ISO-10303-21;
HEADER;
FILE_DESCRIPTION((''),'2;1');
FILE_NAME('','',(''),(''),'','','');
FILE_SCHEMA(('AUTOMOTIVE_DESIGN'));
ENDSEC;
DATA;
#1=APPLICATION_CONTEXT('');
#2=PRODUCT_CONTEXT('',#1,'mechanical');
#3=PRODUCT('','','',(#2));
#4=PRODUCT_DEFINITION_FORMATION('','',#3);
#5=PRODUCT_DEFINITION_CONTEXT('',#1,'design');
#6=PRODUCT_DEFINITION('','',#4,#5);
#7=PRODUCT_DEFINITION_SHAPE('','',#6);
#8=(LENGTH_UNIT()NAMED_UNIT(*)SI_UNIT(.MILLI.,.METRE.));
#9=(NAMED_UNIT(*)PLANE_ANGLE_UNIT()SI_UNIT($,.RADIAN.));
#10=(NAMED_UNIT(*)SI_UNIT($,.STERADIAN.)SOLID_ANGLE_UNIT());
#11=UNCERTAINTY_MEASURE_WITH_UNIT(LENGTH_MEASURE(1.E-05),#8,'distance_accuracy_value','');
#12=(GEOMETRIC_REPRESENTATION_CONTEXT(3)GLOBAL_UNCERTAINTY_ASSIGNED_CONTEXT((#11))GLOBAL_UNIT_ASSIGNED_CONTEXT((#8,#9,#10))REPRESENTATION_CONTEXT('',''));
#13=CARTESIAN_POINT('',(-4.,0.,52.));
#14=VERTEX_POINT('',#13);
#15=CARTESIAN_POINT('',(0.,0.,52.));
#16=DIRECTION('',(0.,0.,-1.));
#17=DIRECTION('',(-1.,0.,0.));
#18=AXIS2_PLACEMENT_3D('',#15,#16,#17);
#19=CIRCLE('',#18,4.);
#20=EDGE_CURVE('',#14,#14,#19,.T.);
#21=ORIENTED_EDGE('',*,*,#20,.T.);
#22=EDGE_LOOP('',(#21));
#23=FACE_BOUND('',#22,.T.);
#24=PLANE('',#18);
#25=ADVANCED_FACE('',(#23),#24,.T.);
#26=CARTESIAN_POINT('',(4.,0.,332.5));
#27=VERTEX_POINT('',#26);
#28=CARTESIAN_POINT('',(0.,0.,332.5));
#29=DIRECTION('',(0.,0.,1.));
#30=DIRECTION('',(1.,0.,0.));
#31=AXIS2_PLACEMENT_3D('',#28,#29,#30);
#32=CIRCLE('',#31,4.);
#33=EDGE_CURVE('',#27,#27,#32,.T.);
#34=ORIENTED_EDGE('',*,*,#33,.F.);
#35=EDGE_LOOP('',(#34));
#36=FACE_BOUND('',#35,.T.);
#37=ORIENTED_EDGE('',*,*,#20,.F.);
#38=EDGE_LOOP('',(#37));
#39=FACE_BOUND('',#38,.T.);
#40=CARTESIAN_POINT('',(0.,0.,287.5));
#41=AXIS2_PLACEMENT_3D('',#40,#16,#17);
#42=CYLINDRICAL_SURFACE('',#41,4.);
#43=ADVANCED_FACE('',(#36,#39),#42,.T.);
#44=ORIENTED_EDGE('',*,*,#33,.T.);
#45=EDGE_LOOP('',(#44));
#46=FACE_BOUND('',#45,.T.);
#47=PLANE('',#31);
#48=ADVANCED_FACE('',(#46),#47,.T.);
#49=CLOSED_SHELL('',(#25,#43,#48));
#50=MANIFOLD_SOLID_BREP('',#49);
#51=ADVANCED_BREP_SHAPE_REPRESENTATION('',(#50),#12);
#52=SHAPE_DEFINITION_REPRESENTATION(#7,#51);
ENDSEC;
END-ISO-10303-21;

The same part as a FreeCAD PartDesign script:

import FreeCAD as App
import Part
import Sketcher

V = App.Vector

doc = App.newDocument("Part")
body = doc.addObject("PartDesign::Body", "Body")

sketch1 = body.newObject("Sketcher::SketchObject", "Sketch")
sketch1.AttachmentSupport = (doc.getObject("XY_Plane"), [""])
sketch1.MapMode = "FlatFace"
sketch1.addGeometry(Part.Circle(V(0, 0, 0), V(0, 0, 1), 4), False)
sketch1.addConstraint([
    Sketcher.Constraint("Coincident", 0, 3, -1, 1),
    Sketcher.Constraint("Diameter", 0, 8.0),
])
pad1 = body.newObject("PartDesign::Pad", "Pad")
pad1.Profile = sketch1
pad1.Length = 287.5

sketch2 = body.newObject("Sketcher::SketchObject", "Sketch001")
sketch2.AttachmentSupport = (doc.getObject("XY_Plane"), [""])
sketch2.MapMode = "FlatFace"
sketch2.AttachmentOffset = App.Placement(V(0, 0, 287.5), App.Rotation())
sketch2.addGeometry(Part.Circle(V(0, 0, 0), V(0, 0, 1), 4), False)
sketch2.addConstraint([
    Sketcher.Constraint("Coincident", 0, 3, -1, 1),
    Sketcher.Constraint("Diameter", 0, 8.0),
])
pad2 = body.newObject("PartDesign::Pad", "Pad001")
pad2.Profile = sketch2
pad2.Length = 45

sketch3 = body.newObject("Sketcher::SketchObject", "Sketch002")
sketch3.AttachmentSupport = (doc.getObject("XY_Plane"), [""])
sketch3.MapMode = "FlatFace"
sketch3.addGeometry(Part.Circle(V(0, 0, 0), V(0, 0, 1), 4), False)
sketch3.addConstraint([
    Sketcher.Constraint("Coincident", 0, 3, -1, 1),
    Sketcher.Constraint("Diameter", 0, 8.0),
])
pocket1 = body.newObject("PartDesign::Pocket", "Pocket")
pocket1.Profile = sketch3
pocket1.Length = 65
pocket1.Reversed = True

sketch4 = body.newObject("Sketcher::SketchObject", "Sketch003")
sketch4.AttachmentSupport = (doc.getObject("XY_Plane"), [""])
sketch4.MapMode = "FlatFace"
sketch4.AttachmentOffset = App.Placement(V(0, 0, 65), App.Rotation())
sketch4.addGeometry(Part.Circle(V(0, 0, 0), V(0, 0, 1), 4), False)
sketch4.addConstraint([
    Sketcher.Constraint("Coincident", 0, 3, -1, 1),
    Sketcher.Constraint("Diameter", 0, 8.0),
])
pad3 = body.newObject("PartDesign::Pad", "Pad002")
pad3.Profile = sketch4
pad3.Length = 13
pad3.Reversed = True

doc.recompute()
